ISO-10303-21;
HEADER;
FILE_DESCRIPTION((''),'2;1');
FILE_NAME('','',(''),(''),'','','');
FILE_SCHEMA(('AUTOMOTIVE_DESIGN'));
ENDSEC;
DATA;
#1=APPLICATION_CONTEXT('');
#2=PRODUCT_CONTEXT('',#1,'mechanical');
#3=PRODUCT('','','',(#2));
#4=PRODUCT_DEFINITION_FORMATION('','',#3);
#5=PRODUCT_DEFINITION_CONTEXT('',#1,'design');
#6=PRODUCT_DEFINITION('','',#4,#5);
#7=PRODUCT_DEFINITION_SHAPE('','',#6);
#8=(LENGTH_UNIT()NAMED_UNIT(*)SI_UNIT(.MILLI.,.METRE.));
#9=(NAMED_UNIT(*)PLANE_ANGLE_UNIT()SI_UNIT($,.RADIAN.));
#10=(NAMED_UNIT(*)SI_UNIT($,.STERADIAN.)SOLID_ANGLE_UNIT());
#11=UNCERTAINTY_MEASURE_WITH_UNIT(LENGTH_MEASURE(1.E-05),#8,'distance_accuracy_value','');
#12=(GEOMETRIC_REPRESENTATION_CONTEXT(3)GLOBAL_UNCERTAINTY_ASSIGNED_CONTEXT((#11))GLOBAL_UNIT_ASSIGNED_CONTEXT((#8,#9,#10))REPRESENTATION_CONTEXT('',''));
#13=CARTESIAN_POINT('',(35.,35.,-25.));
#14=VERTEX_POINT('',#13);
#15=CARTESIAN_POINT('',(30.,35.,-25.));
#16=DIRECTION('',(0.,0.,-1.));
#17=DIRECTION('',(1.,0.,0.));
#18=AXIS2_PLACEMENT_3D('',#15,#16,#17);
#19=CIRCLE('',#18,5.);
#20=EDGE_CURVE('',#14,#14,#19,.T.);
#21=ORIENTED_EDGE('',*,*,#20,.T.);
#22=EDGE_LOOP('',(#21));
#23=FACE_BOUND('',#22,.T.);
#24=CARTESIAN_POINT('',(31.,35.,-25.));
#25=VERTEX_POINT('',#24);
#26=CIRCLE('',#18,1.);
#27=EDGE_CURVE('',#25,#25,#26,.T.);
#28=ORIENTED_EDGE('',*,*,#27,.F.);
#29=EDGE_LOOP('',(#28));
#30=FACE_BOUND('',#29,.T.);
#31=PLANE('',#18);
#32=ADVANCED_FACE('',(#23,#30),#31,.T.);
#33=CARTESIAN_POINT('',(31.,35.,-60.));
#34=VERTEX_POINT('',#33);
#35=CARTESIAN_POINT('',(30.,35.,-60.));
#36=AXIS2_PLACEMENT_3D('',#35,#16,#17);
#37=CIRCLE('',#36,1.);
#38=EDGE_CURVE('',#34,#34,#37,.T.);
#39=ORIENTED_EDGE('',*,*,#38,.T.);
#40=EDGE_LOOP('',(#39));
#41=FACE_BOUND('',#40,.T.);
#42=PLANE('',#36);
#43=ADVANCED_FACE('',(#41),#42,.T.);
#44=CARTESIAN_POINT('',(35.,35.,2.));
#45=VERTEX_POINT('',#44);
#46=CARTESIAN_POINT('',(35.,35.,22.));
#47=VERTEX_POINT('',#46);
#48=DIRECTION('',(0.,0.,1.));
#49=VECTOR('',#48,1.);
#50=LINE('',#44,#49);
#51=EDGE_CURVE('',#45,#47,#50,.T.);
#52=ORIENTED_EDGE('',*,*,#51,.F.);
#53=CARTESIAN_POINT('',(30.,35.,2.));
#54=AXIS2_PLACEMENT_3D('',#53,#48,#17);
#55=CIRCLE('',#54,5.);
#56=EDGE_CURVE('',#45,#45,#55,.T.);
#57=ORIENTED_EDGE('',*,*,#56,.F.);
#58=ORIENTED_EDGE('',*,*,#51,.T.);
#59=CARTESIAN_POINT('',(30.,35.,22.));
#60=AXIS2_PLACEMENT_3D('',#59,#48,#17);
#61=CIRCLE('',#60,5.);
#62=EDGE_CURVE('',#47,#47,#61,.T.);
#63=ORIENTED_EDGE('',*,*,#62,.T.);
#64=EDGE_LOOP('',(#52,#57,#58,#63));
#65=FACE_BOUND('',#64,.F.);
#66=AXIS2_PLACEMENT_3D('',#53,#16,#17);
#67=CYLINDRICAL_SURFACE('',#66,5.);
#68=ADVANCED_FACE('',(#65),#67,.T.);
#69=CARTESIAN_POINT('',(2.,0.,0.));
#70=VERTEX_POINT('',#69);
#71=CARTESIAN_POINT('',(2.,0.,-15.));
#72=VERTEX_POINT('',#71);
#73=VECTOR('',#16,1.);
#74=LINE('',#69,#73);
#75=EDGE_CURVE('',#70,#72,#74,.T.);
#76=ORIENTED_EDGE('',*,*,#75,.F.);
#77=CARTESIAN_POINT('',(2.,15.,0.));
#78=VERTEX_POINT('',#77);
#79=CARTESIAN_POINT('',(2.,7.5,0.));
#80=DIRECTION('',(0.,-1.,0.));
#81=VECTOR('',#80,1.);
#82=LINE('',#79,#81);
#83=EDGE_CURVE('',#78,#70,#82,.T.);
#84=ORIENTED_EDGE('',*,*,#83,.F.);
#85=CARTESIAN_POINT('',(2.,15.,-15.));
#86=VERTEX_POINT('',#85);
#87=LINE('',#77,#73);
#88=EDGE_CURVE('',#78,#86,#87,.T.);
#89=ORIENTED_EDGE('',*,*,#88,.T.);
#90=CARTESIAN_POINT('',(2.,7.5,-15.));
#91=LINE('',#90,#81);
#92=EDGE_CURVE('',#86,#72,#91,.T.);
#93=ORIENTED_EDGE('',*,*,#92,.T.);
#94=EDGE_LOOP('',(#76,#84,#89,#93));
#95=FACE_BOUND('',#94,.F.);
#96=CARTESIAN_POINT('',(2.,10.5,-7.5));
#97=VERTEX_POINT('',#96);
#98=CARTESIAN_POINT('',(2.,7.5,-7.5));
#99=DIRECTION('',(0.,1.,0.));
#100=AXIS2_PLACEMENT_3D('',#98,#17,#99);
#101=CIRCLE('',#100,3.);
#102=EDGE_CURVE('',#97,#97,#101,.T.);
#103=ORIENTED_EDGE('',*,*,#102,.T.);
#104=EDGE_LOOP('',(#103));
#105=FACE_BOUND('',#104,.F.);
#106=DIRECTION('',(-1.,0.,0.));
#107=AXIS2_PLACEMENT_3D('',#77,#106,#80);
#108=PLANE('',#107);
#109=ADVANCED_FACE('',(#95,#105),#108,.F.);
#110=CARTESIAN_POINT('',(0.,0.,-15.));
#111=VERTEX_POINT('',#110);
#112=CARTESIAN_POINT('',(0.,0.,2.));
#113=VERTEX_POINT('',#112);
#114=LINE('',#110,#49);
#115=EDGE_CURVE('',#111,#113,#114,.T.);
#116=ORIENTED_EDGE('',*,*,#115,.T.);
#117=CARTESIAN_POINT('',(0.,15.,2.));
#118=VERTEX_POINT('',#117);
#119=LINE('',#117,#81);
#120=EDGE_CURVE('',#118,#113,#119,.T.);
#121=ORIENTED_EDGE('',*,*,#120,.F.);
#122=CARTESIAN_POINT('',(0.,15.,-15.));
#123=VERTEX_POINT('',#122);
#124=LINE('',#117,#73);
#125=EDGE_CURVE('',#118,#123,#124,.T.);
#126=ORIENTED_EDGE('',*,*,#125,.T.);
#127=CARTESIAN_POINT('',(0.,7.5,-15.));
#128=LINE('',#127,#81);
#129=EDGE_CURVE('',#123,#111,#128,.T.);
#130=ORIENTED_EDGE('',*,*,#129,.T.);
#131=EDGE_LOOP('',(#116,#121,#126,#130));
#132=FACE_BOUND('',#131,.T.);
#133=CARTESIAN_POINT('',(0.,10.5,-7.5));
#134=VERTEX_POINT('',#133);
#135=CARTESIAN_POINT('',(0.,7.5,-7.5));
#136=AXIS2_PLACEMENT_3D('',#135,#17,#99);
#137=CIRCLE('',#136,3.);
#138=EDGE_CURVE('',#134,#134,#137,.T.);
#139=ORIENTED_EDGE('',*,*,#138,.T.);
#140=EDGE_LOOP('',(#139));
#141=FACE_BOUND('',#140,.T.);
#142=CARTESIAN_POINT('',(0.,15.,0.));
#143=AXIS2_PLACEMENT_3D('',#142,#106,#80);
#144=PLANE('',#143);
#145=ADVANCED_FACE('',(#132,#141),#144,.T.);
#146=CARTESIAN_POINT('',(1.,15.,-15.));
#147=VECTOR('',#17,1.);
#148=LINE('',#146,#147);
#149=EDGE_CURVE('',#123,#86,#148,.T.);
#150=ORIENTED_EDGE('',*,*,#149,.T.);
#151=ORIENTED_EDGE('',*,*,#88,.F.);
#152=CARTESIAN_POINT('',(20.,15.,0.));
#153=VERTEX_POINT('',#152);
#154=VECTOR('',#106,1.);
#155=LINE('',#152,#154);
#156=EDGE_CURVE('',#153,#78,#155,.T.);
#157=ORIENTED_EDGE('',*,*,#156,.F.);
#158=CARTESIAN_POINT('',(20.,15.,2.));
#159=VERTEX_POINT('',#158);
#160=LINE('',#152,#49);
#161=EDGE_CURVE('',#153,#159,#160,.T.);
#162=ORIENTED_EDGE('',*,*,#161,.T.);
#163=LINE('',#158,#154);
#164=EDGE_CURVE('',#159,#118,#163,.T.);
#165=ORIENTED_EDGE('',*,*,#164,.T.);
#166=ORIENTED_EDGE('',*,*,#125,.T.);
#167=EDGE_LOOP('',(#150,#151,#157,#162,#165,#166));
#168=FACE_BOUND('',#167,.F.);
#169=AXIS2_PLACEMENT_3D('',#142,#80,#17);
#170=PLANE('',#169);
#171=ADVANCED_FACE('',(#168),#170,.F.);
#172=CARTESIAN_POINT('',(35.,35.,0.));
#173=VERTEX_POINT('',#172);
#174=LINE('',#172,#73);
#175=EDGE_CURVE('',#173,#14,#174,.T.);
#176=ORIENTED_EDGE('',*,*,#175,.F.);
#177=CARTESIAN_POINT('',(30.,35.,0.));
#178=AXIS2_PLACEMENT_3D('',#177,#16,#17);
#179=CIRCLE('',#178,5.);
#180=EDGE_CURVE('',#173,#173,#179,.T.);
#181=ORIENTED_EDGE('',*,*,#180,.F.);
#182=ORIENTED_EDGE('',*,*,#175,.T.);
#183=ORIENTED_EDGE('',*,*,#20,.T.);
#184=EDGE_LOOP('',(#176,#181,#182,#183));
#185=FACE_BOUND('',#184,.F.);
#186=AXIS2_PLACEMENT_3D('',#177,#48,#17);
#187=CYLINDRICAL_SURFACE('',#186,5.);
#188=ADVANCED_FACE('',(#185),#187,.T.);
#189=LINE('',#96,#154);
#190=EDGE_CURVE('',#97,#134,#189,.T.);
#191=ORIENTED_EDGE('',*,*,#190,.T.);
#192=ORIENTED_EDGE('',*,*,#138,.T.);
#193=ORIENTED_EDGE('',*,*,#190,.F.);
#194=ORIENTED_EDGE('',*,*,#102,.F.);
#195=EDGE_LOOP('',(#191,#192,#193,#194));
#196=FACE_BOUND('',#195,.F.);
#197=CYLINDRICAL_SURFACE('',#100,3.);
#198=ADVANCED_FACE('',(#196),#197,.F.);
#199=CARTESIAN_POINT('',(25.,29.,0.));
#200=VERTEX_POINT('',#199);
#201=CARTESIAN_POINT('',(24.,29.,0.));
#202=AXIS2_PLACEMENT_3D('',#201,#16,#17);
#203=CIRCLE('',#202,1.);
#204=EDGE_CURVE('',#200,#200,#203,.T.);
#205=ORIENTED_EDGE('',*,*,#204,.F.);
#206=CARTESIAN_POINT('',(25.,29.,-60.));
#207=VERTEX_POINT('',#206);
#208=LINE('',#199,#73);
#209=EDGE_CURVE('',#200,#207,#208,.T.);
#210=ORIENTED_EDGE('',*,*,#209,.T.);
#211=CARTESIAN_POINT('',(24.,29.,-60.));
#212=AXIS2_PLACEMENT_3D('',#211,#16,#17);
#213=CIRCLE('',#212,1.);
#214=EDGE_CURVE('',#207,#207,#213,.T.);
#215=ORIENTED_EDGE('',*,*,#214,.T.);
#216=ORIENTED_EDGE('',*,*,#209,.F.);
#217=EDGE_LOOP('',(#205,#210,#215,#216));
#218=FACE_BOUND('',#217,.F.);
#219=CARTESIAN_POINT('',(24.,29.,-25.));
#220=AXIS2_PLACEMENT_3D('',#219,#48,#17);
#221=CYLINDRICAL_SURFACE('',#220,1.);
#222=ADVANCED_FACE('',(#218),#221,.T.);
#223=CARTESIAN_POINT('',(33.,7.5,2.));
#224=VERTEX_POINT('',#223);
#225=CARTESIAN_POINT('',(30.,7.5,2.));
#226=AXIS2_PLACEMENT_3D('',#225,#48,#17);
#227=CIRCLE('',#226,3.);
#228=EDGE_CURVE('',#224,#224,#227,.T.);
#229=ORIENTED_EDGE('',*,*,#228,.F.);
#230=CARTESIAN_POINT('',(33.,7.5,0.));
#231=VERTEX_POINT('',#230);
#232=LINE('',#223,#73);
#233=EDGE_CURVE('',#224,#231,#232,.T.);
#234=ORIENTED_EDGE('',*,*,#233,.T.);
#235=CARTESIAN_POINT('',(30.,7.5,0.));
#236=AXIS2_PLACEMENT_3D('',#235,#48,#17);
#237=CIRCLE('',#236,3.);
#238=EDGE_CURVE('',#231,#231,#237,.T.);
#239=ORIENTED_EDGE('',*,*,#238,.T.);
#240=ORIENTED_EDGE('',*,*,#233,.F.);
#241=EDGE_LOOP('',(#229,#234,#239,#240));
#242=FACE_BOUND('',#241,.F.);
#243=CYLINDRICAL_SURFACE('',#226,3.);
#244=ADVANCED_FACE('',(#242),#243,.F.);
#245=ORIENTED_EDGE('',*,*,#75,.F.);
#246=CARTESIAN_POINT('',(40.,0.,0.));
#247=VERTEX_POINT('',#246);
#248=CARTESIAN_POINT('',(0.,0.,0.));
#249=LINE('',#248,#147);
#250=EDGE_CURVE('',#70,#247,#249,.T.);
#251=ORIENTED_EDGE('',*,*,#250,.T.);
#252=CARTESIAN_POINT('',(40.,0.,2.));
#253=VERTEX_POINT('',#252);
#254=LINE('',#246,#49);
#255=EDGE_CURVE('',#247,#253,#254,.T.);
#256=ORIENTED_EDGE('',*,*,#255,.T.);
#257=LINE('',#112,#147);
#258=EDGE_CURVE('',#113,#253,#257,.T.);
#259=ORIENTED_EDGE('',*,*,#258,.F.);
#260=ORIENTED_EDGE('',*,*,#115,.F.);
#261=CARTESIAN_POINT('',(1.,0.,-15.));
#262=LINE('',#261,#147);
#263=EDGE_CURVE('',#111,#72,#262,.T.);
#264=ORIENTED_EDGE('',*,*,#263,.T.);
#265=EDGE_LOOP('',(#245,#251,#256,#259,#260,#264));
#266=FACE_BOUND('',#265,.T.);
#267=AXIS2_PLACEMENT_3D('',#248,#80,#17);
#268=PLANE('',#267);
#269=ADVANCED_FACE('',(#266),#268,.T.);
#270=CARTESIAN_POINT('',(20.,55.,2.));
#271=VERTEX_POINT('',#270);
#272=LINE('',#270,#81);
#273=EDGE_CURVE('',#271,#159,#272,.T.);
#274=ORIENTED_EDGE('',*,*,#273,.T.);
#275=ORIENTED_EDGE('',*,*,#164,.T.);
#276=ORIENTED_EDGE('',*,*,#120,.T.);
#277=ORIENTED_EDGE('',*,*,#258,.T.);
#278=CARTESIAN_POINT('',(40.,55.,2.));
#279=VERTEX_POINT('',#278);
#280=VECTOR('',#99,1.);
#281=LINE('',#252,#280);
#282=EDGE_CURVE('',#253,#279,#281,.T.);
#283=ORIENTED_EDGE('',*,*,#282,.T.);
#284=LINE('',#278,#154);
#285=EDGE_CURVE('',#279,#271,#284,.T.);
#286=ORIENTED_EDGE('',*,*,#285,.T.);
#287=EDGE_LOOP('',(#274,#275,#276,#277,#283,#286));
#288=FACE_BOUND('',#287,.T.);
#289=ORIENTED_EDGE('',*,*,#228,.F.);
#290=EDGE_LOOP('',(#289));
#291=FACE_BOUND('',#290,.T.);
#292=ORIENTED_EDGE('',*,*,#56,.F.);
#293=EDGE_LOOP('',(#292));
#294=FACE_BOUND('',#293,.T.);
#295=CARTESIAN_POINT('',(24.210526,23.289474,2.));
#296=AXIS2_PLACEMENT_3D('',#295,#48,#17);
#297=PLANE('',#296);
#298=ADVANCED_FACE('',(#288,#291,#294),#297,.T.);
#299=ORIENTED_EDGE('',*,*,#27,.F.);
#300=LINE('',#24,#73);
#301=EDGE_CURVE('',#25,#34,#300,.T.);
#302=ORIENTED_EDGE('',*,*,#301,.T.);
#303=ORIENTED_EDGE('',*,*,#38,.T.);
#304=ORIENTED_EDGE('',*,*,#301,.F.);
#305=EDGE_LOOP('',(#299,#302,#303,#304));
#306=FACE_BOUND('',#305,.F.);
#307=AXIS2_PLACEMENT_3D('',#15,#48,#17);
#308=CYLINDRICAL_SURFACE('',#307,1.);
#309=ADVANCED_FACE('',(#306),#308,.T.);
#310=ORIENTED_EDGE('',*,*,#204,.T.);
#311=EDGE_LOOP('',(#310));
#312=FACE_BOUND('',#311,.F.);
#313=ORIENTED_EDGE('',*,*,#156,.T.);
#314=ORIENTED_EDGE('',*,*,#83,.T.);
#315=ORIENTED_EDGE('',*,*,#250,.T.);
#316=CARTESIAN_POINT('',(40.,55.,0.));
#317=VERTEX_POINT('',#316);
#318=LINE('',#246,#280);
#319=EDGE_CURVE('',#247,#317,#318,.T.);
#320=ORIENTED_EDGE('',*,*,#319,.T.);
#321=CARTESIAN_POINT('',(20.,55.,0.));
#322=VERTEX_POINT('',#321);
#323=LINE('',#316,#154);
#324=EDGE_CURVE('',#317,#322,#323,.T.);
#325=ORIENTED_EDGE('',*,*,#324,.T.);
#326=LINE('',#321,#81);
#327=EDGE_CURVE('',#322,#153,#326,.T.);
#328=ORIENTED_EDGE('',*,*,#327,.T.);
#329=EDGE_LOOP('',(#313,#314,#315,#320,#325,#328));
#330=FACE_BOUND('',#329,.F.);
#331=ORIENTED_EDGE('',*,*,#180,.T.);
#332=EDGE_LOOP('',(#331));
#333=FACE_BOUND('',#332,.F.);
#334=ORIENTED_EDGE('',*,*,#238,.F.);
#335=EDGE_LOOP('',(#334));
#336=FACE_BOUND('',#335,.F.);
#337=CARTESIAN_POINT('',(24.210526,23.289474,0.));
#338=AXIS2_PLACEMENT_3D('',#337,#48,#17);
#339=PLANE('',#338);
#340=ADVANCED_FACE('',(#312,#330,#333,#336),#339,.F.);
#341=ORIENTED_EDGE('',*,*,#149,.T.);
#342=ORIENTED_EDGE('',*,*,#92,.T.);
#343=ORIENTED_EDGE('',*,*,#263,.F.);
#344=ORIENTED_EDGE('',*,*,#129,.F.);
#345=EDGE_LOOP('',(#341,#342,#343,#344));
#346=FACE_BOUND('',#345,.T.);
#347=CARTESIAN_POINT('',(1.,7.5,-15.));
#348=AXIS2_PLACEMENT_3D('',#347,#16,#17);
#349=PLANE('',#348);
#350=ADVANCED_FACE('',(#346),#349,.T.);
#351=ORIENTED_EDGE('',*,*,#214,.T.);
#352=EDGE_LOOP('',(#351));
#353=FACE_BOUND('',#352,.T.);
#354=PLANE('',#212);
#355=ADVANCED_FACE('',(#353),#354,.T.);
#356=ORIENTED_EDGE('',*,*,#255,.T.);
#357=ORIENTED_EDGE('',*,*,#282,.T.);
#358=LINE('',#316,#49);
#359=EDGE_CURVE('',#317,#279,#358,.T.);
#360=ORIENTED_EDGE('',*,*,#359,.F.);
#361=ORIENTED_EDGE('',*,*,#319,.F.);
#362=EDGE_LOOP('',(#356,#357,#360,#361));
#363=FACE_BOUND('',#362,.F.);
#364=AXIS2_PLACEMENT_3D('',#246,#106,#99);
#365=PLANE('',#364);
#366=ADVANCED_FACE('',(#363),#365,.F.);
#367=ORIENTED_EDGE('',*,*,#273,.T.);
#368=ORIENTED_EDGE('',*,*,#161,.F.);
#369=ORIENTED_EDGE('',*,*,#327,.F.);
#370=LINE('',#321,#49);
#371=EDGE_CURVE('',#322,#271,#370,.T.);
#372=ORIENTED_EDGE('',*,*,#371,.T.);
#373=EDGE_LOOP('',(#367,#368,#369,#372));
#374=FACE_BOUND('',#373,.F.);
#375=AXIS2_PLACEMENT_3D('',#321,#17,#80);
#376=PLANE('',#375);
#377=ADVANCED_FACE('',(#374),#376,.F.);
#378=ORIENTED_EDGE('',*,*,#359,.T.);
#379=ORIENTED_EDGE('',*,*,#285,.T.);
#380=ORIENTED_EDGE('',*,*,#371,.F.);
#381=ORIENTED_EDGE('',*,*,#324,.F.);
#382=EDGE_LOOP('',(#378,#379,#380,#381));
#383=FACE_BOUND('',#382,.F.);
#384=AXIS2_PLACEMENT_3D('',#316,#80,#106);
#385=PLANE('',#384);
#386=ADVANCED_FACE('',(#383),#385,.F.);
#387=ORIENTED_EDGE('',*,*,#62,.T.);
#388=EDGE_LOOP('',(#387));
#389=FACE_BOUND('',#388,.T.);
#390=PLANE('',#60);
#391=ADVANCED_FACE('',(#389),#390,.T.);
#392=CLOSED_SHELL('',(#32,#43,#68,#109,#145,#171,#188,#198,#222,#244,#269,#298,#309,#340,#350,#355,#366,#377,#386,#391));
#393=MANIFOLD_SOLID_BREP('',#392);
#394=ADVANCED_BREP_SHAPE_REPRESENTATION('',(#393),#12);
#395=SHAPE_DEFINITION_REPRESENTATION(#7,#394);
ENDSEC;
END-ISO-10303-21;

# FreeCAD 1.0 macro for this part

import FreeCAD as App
import Part
import Sketcher

doc = App.newDocument("Part")
params = doc.addObject("Spreadsheet::Sheet", "Params")
for row, (alias, value) in enumerate([
    ("sketch1_width", "40 mm"),
    ("sketch1_height", "55 mm"),
    ("pad1_length", "2 mm"),
    ("sketch2_diameter", "10 mm"),
    ("pad2_length", "20 mm"),
    ("sketch3_width", "2 mm"),
    ("sketch3_height", "15 mm"),
    ("pad3_length", "15 mm"),
    ("sketch4_diameter", "10 mm"),
    ("sketch4_diameter2", "2 mm"),
    ("pad4_length", "25 mm"),
    ("sketch5_diameter", "2 mm"),
    ("pad5_length", "35 mm"),
    ("sketch6_diameter", "6 mm"),
    ("pocket1_length", "2 mm"),
    ("sketch7_diameter", "6 mm"),
    ("pocket2_length", "2 mm"),
], start=1):
    params.set(f"A{row}", alias)
    params.set(f"B{row}", "=" + value)
    params.setAlias(f"B{row}", alias)

body = doc.addObject("PartDesign::Body", "Body")

# Sketch on XY plane
sketch1 = doc.addObject("Sketcher::SketchObject", "Sketch")
body.addObject(sketch1)
sketch1.AttachmentSupport = (doc.XY_Plane, [""])
sketch1.MapMode = "FlatFace"
sketch1.addGeometry([
    Part.LineSegment(App.Vector(0, 0, 0), App.Vector(40, 0, 0)),  # 0
    Part.LineSegment(App.Vector(40, 0, 0), App.Vector(40, 55, 0)),  # 1
    Part.LineSegment(App.Vector(40, 55, 0), App.Vector(20, 55, 0)),  # 2
    Part.LineSegment(App.Vector(20, 55, 0), App.Vector(20, 15, 0)),  # 3
    Part.LineSegment(App.Vector(20, 15, 0), App.Vector(0, 15, 0)),  # 4
    Part.LineSegment(App.Vector(0, 15, 0), App.Vector(0, 0, 0)),  # 5
], False)
sketch1.addConstraint([
    Sketcher.Constraint("Coincident", 0, 2, 1, 1),
    Sketcher.Constraint("Coincident", 1, 2, 2, 1),
    Sketcher.Constraint("Coincident", 2, 2, 3, 1),
    Sketcher.Constraint("Coincident", 3, 2, 4, 1),
    Sketcher.Constraint("Coincident", 4, 2, 5, 1),
    Sketcher.Constraint("Coincident", 5, 2, 0, 1),
    Sketcher.Constraint("Horizontal", 0),
    Sketcher.Constraint("Vertical", 1),
    Sketcher.Constraint("Horizontal", 2),
    Sketcher.Constraint("Vertical", 3),
    Sketcher.Constraint("Horizontal", 4),
    Sketcher.Constraint("Vertical", 5),
    Sketcher.Constraint("Coincident", 5, 2, -1, 1),
    Sketcher.Constraint("Equal", 2, 4),
    Sketcher.Constraint("Equal", 0, 3),
    Sketcher.Constraint("DistanceX", 0, 1, 0, 2, 40.0),
    Sketcher.Constraint("DistanceY", 1, 1, 1, 2, 55.0),
])
sketch1.setExpression("Constraints[15]", "Params.sketch1_width")
sketch1.setExpression("Constraints[16]", "Params.sketch1_height")
pad1 = doc.addObject("PartDesign::Pad", "Pad")
body.addObject(pad1)
pad1.Profile = sketch1
pad1.setExpression("Length", "Params.pad1_length")

# Sketch on XY plane
sketch2 = doc.addObject("Sketcher::SketchObject", "Sketch001")
body.addObject(sketch2)
sketch2.AttachmentSupport = (doc.XY_Plane, [""])
sketch2.MapMode = "FlatFace"
sketch2.AttachmentOffset = App.Placement(App.Vector(0, 0, 2), App.Rotation())
sketch2.addGeometry(Part.Circle(App.Vector(30, 35, 0), App.Vector(0, 0, 1), 5), False)
sketch2.addConstraint([
    Sketcher.Constraint("Diameter", 0, 10.0),
    Sketcher.Constraint("DistanceX", -1, 1, 0, 3, 30.0),
    Sketcher.Constraint("DistanceY", -1, 1, 0, 3, 35.0),
])
sketch2.setExpression("Constraints[0]", "Params.sketch2_diameter")
pad2 = doc.addObject("PartDesign::Pad", "Pad001")
body.addObject(pad2)
pad2.Profile = sketch2
pad2.setExpression("Length", "Params.pad2_length")

# Sketch on XY plane
sketch3 = doc.addObject("Sketcher::SketchObject", "Sketch002")
body.addObject(sketch3)
sketch3.AttachmentSupport = (doc.XY_Plane, [""])
sketch3.MapMode = "FlatFace"
sketch3.addGeometry([
    Part.LineSegment(App.Vector(0, 0, 0), App.Vector(0, 15, 0)),
    Part.LineSegment(App.Vector(0, 15, 0), App.Vector(2, 15, 0)),
    Part.LineSegment(App.Vector(2, 15, 0), App.Vector(2, 0, 0)),
    Part.LineSegment(App.Vector(2, 0, 0), App.Vector(0, 0, 0)),
], False)
sketch3.addConstraint([
    Sketcher.Constraint("Coincident", 0, 2, 1, 1),
    Sketcher.Constraint("Coincident", 1, 2, 2, 1),
    Sketcher.Constraint("Coincident", 2, 2, 3, 1),
    Sketcher.Constraint("Coincident", 3, 2, 0, 1),
    Sketcher.Constraint("Vertical", 0),
    Sketcher.Constraint("Horizontal", 1),
    Sketcher.Constraint("Vertical", 2),
    Sketcher.Constraint("Horizontal", 3),
    Sketcher.Constraint("Coincident", 3, 2, -1, 1),
    Sketcher.Constraint("DistanceX", 1, 1, 1, 2, 2.0),
    Sketcher.Constraint("DistanceY", 0, 1, 0, 2, 15.0),
])
sketch3.setExpression("Constraints[9]", "Params.sketch3_width")
sketch3.setExpression("Constraints[10]", "Params.sketch3_height")
pad3 = doc.addObject("PartDesign::Pad", "Pad002")
body.addObject(pad3)
pad3.Profile = sketch3
pad3.setExpression("Length", "Params.pad3_length")
pad3.Reversed = True

# Sketch on XY plane
sketch4 = doc.addObject("Sketcher::SketchObject", "Sketch003")
body.addObject(sketch4)
sketch4.AttachmentSupport = (doc.XY_Plane, [""])
sketch4.MapMode = "FlatFace"
sketch4.addGeometry([
    Part.Circle(App.Vector(30, 35, 0), App.Vector(0, 0, 1), 5),
    Part.Circle(App.Vector(24, 29, 0), App.Vector(0, 0, 1), 1),
], False)
sketch4.addConstraint([
    Sketcher.Constraint("Diameter", 0, 10.0),
    Sketcher.Constraint("Diameter", 1, 2.0),
    Sketcher.Constraint("DistanceX", -1, 1, 0, 3, 30.0),
    Sketcher.Constraint("DistanceY", -1, 1, 0, 3, 35.0),
    Sketcher.Constraint("DistanceX", -1, 1, 1, 3, 24.0),
    Sketcher.Constraint("DistanceY", -1, 1, 1, 3, 29.0),
])
sketch4.setExpression("Constraints[0]", "Params.sketch4_diameter")
sketch4.setExpression("Constraints[1]", "Params.sketch4_diameter2")
pad4 = doc.addObject("PartDesign::Pad", "Pad003")
body.addObject(pad4)
pad4.Profile = sketch4
pad4.setExpression("Length", "Params.pad4_length")
pad4.Reversed = True

# Sketch on XY plane
sketch5 = doc.addObject("Sketcher::SketchObject", "Sketch004")
body.addObject(sketch5)
sketch5.AttachmentSupport = (doc.XY_Plane, [""])
sketch5.MapMode = "FlatFace"
sketch5.AttachmentOffset = App.Placement(App.Vector(0, 0, -25), App.Rotation())
sketch5.addGeometry([
    Part.Circle(App.Vector(24, 29, 0), App.Vector(0, 0, 1), 1),
    Part.Circle(App.Vector(30, 35, 0), App.Vector(0, 0, 1), 1),
], False)
sketch5.addConstraint([
    Sketcher.Constraint("Equal", 0, 1),
    Sketcher.Constraint("Diameter", 0, 2.0),
    Sketcher.Constraint("DistanceX", -1, 1, 0, 3, 24.0),
    Sketcher.Constraint("DistanceY", -1, 1, 0, 3, 29.0),
    Sketcher.Constraint("DistanceX", -1, 1, 1, 3, 30.0),
    Sketcher.Constraint("DistanceY", -1, 1, 1, 3, 35.0),
])
sketch5.setExpression("Constraints[1]", "Params.sketch5_diameter")
pad5 = doc.addObject("PartDesign::Pad", "Pad004")
body.addObject(pad5)
pad5.Profile = sketch5
pad5.setExpression("Length", "Params.pad5_length")
pad5.Reversed = True

# Sketch on XY plane
sketch6 = doc.addObject("Sketcher::SketchObject", "Sketch005")
body.addObject(sketch6)
sketch6.AttachmentSupport = (doc.XY_Plane, [""])
sketch6.MapMode = "FlatFace"
sketch6.AttachmentOffset = App.Placement(App.Vector(0, 0, 2), App.Rotation())
sketch6.addGeometry(Part.Circle(App.Vector(30, 7.5, 0), App.Vector(0, 0, 1), 3), False)
sketch6.addConstraint([
    Sketcher.Constraint("Diameter", 0, 6.0),
    Sketcher.Constraint("DistanceX", -1, 1, 0, 3, 30.0),
    Sketcher.Constraint("DistanceY", -1, 1, 0, 3, 7.5),
])
sketch6.setExpression("Constraints[0]", "Params.sketch6_diameter")
pocket1 = doc.addObject("PartDesign::Pocket", "Pocket")
body.addObject(pocket1)
pocket1.Profile = sketch6
pocket1.setExpression("Length", "Params.pocket1_length")

# Sketch on YZ plane
sketch7 = doc.addObject("Sketcher::SketchObject", "Sketch006")
body.addObject(sketch7)
sketch7.AttachmentSupport = (doc.YZ_Plane, [""])
sketch7.MapMode = "FlatFace"
sketch7.AttachmentOffset = App.Placement(App.Vector(0, 0, 2), App.Rotation())
sketch7.addGeometry(Part.Circle(App.Vector(7.5, -7.5, 0), App.Vector(0, 0, 1), 3), False)
sketch7.addConstraint([
    Sketcher.Constraint("Diameter", 0, 6.0),
    Sketcher.Constraint("DistanceX", -1, 1, 0, 3, 7.5),
    Sketcher.Constraint("DistanceY", 0, 3, -1, 1, 7.5),
])
sketch7.setExpression("Constraints[0]", "Params.sketch7_diameter")
pocket2 = doc.addObject("PartDesign::Pocket", "Pocket001")
body.addObject(pocket2)
pocket2.Profile = sketch7
pocket2.setExpression("Length", "Params.pocket2_length")

doc.recompute()
